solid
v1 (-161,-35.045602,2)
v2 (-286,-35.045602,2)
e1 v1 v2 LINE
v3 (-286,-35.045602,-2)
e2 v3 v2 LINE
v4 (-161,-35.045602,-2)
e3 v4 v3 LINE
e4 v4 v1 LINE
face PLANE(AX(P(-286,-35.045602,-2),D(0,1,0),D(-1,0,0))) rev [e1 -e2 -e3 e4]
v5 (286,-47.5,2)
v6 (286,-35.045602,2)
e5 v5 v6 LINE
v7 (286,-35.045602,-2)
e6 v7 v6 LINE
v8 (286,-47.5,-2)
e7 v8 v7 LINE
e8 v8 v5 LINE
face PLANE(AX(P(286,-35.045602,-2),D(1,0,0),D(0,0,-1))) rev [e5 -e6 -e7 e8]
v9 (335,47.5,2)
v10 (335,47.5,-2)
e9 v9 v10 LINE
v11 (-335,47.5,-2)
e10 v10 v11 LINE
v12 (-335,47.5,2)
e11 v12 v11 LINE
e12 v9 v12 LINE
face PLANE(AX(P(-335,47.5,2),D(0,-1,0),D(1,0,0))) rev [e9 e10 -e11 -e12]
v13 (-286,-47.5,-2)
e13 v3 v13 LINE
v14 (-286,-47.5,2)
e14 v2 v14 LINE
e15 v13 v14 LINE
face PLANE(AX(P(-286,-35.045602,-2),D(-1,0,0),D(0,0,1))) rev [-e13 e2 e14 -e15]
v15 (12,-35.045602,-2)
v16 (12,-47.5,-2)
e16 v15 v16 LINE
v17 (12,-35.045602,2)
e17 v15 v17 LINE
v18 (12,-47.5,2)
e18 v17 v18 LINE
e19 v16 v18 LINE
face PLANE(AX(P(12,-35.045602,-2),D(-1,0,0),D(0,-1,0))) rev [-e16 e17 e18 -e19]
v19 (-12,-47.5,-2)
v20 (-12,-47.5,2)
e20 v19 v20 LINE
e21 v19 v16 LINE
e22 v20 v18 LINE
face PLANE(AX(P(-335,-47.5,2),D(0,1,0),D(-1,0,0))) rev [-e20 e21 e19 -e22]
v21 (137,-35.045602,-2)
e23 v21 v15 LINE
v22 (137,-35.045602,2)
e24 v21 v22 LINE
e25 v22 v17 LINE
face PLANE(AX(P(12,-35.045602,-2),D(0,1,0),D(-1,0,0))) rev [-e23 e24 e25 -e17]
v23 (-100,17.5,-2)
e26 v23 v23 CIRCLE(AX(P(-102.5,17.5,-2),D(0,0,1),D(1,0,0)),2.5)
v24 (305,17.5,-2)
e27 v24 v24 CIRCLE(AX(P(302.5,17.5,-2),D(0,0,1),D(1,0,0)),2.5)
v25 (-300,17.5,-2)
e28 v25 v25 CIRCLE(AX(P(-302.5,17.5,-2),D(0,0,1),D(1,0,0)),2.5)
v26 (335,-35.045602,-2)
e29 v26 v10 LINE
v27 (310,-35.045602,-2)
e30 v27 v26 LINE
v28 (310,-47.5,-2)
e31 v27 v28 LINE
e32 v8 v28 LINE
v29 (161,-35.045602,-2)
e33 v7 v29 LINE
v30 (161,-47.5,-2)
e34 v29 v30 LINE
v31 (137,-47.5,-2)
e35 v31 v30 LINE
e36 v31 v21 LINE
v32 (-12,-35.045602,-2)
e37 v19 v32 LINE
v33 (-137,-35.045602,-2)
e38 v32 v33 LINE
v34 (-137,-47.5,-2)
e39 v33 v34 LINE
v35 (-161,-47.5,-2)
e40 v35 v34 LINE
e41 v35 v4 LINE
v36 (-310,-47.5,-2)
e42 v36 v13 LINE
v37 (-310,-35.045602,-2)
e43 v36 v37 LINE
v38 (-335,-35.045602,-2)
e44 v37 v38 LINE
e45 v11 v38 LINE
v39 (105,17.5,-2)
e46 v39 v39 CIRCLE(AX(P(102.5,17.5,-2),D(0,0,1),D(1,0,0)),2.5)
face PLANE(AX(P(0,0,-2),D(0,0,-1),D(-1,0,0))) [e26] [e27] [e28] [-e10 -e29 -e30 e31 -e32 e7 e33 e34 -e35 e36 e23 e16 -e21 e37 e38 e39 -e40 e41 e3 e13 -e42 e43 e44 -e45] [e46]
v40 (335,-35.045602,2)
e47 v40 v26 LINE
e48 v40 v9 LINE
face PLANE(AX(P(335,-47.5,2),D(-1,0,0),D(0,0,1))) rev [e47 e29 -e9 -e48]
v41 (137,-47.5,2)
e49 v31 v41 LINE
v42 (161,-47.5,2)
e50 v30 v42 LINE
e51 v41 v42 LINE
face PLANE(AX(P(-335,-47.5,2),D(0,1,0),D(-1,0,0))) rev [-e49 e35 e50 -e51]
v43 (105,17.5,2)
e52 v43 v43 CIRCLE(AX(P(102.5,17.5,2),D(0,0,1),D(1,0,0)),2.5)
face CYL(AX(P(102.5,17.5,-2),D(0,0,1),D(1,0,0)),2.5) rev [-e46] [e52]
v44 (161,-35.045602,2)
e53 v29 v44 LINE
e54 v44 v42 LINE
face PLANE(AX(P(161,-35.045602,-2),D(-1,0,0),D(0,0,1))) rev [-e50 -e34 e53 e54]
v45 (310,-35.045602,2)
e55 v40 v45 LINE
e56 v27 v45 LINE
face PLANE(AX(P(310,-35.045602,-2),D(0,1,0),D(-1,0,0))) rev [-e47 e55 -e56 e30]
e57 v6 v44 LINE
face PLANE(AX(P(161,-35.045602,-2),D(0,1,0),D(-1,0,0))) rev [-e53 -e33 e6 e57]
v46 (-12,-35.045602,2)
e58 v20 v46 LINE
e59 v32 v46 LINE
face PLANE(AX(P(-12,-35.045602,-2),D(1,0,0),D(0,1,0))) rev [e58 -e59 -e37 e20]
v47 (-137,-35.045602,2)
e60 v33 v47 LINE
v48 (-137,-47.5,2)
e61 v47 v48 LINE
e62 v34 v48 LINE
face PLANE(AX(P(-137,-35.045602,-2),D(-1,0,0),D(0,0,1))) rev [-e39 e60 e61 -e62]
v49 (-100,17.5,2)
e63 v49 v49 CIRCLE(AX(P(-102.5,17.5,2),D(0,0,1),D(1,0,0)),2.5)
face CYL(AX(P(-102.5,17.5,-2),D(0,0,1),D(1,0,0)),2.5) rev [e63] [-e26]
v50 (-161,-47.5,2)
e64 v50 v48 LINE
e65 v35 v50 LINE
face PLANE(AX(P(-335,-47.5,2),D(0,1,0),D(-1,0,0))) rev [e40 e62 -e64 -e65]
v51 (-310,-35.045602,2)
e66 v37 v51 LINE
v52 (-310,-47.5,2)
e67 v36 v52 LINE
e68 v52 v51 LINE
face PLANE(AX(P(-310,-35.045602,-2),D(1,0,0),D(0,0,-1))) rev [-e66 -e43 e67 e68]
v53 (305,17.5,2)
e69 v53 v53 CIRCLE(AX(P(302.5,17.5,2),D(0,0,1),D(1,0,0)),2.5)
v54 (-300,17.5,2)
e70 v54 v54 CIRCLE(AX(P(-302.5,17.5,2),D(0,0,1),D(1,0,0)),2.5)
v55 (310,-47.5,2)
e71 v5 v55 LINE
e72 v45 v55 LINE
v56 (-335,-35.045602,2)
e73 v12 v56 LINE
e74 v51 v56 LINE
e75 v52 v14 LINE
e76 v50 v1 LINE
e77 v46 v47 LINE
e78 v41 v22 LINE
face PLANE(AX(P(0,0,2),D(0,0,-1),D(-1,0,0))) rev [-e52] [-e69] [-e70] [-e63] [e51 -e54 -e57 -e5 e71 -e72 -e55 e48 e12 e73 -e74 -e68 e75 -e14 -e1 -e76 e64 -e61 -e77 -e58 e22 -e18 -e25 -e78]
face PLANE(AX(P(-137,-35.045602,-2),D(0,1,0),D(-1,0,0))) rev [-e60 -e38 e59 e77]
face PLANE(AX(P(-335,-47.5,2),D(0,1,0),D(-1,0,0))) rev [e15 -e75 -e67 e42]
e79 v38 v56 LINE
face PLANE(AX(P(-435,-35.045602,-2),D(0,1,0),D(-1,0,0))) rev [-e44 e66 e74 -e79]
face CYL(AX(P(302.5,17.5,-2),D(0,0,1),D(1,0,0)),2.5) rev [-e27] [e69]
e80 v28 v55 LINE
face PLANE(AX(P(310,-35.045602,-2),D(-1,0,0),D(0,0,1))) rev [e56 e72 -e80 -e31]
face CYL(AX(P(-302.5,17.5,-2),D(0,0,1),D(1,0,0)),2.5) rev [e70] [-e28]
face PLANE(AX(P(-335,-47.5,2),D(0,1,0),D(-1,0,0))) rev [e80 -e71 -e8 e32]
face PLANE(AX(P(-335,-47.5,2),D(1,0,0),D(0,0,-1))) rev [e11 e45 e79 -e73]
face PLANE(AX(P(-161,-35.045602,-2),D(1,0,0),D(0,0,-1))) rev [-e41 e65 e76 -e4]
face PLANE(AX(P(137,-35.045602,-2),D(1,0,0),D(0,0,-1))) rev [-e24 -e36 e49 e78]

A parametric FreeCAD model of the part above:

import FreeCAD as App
import Part
import Sketcher

V = App.Vector
Q = App.Units.Quantity

doc = App.newDocument("Part")
params = doc.addObject("Spreadsheet::Sheet", "Params")
for row, (alias, value) in enumerate([
    ("sketch1_width", "670 mm"),
    ("sketch1_height", "95 mm"),
    ("pad1_length", "4 mm"),
    ("sketch2_width", "125 mm"),
    ("sketch3_diameter", "5 mm"),
], start=1):
    params.set(f"A{row}", alias)
    params.set(f"B{row}", "=" + value)
    params.setAlias(f"B{row}", alias)

body = doc.addObject("PartDesign::Body", "Body")

# Sketch on XY plane
sketch1 = doc.addObject("Sketcher::SketchObject", "Sketch")
body.addObject(sketch1)
sketch1.AttachmentSupport = (doc.XY_Plane, [""])
sketch1.MapMode = "FlatFace"
sketch1.addGeometry([
    Part.LineSegment(V(-335, 48, 0), V(-335, -48, 0)),
    Part.LineSegment(V(-335, -48, 0), V(335, -48, 0)),
    Part.LineSegment(V(335, -48, 0), V(335, 48, 0)),
    Part.LineSegment(V(335, 48, 0), V(-335, 48, 0)),
], False)
sketch1.addConstraint([
    Sketcher.Constraint("Coincident", 0, 2, 1, 1),
    Sketcher.Constraint("Coincident", 1, 2, 2, 1),
    Sketcher.Constraint("Coincident", 2, 2, 3, 1),
    Sketcher.Constraint("Coincident", 3, 2, 0, 1),
    Sketcher.Constraint("Vertical", 0),
    Sketcher.Constraint("Horizontal", 1),
    Sketcher.Constraint("Vertical", 2),
    Sketcher.Constraint("Horizontal", 3),
    Sketcher.Constraint("Symmetric", 0, 2, 2, 2, -1, 1),
    Sketcher.Constraint("DistanceX", 1, 1, 1, 2, Q("670 mm")),
    Sketcher.Constraint("DistanceY", 0, 2, 0, 1, Q("95 mm")),
])
sketch1.setExpression("Constraints[9]", "Params.sketch1_width")
sketch1.setExpression("Constraints[10]", "Params.sketch1_height")
pad1 = doc.addObject("PartDesign::Pad", "Pad")
body.addObject(pad1)
pad1.Profile = sketch1
pad1.setExpression("Length", "Params.pad1_length")
pad1.Midplane = True

# Sketch on XY plane
sketch2 = doc.addObject("Sketcher::SketchObject", "Sketch001")
body.addObject(sketch2)
sketch2.AttachmentSupport = (doc.XY_Plane, [""])
sketch2.MapMode = "FlatFace"
sketch2.AttachmentOffset = App.Placement(V(0, 0, 2), App.Rotation())
sketch2.addGeometry([
    Part.LineSegment(V(-435, -35, 0), V(-435, -48, 0)),  # 0
    Part.LineSegment(V(-435, -48, 0), V(-310, -48, 0)),  # 1
    Part.LineSegment(V(-310, -48, 0), V(-310, -35, 0)),  # 2
    Part.LineSegment(V(-310, -35, 0), V(-435, -35, 0)),  # 3
    Part.LineSegment(V(-286, -35, 0), V(-286, -48, 0)),  # 4
    Part.LineSegment(V(-286, -48, 0), V(-161, -48, 0)),  # 5
    Part.LineSegment(V(-161, -48, 0), V(-161, -35, 0)),  # 6
    Part.LineSegment(V(-161, -35, 0), V(-286, -35, 0)),  # 7
    Part.LineSegment(V(-137, -35, 0), V(-137, -48, 0)),  # 8
    Part.LineSegment(V(-137, -48, 0), V(-12, -48, 0)),  # 9
    Part.LineSegment(V(-12, -48, 0), V(-12, -35, 0)),  # 10
    Part.LineSegment(V(-12, -35, 0), V(-137, -35, 0)),  # 11
    Part.LineSegment(V(12, -35, 0), V(12, -48, 0)),  # 12
    Part.LineSegment(V(12, -48, 0), V(137, -48, 0)),  # 13
    Part.LineSegment(V(137, -48, 0), V(137, -35, 0)),  # 14
    Part.LineSegment(V(137, -35, 0), V(12, -35, 0)),  # 15
    Part.LineSegment(V(161, -35, 0), V(161, -48, 0)),  # 16
    Part.LineSegment(V(161, -48, 0), V(286, -48, 0)),  # 17
    Part.LineSegment(V(286, -48, 0), V(286, -35, 0)),  # 18
    Part.LineSegment(V(286, -35, 0), V(161, -35, 0)),  # 19
    Part.LineSegment(V(310, -35, 0), V(310, -48, 0)),  # 20
    Part.LineSegment(V(310, -48, 0), V(435, -48, 0)),  # 21
    Part.LineSegment(V(435, -48, 0), V(435, -35, 0)),  # 22
    Part.LineSegment(V(435, -35, 0), V(310, -35, 0)),  # 23
], False)
sketch2.addConstraint([
    Sketcher.Constraint("Coincident", 0, 2, 1, 1),
    Sketcher.Constraint("Coincident", 1, 2, 2, 1),
    Sketcher.Constraint("Coincident", 2, 2, 3, 1),
    Sketcher.Constraint("Coincident", 3, 2, 0, 1),
    Sketcher.Constraint("Coincident", 4, 2, 5, 1),
    Sketcher.Constraint("Coincident", 5, 2, 6, 1),
    Sketcher.Constraint("Coincident", 6, 2, 7, 1),
    Sketcher.Constraint("Coincident", 7, 2, 4, 1),
    Sketcher.Constraint("Coincident", 8, 2, 9, 1),
    Sketcher.Constraint("Coincident", 9, 2, 10, 1),
    Sketcher.Constraint("Coincident", 10, 2, 11, 1),
    Sketcher.Constraint("Coincident", 11, 2, 8, 1),
    Sketcher.Constraint("Coincident", 12, 2, 13, 1),
    Sketcher.Constraint("Coincident", 13, 2, 14, 1),
    Sketcher.Constraint("Coincident", 14, 2, 15, 1),
    Sketcher.Constraint("Coincident", 15, 2, 12, 1),
    Sketcher.Constraint("Coincident", 16, 2, 17, 1),
    Sketcher.Constraint("Coincident", 17, 2, 18, 1),
    Sketcher.Constraint("Coincident", 18, 2, 19, 1),
    Sketcher.Constraint("Coincident", 19, 2, 16, 1),
    Sketcher.Constraint("Coincident", 20, 2, 21, 1),
    Sketcher.Constraint("Coincident", 21, 2, 22, 1),
    Sketcher.Constraint("Coincident", 22, 2, 23, 1),
    Sketcher.Constraint("Coincident", 23, 2, 20, 1),
    Sketcher.Constraint("Vertical", 0),
    Sketcher.Constraint("Horizontal", 1),
    Sketcher.Constraint("Vertical", 2),
    Sketcher.Constraint("Horizontal", 3),
    Sketcher.Constraint("Vertical", 4),
    Sketcher.Constraint("Horizontal", 5),
    Sketcher.Constraint("Vertical", 6),
    Sketcher.Constraint("Horizontal", 7),
    Sketcher.Constraint("Vertical", 8),
    Sketcher.Constraint("Horizontal", 9),
    Sketcher.Constraint("Vertical", 10),
    Sketcher.Constraint("Horizontal", 11),
    Sketcher.Constraint("Vertical", 12),
    Sketcher.Constraint("Horizontal", 13),
    Sketcher.Constraint("Vertical", 14),
    Sketcher.Constraint("Horizontal", 15),
    Sketcher.Constraint("Vertical", 16),
    Sketcher.Constraint("Horizontal", 17),
    Sketcher.Constraint("Vertical", 18),
    Sketcher.Constraint("Horizontal", 19),
    Sketcher.Constraint("Vertical", 20),
    Sketcher.Constraint("Horizontal", 21),
    Sketcher.Constraint("Vertical", 22),
    Sketcher.Constraint("Horizontal", 23),
    Sketcher.Constraint("Symmetric", 9, 2, 12, 2, -2),
    Sketcher.Constraint("Symmetric", 11, 2, 14, 2, -2),
    Sketcher.Constraint("Symmetric", 5, 2, 16, 2, -2),
    Sketcher.Constraint("Symmetric", 7, 2, 18, 2, -2),
    Sketcher.Constraint("Symmetric", 1, 2, 20, 2, -2),
    Sketcher.Constraint("Symmetric", 3, 2, 22, 2, -2),
    Sketcher.Constraint("Horizontal", 1, 2, 4, 2),
    Sketcher.Constraint("Horizontal", 3, 2, 6, 2),
    Sketcher.Constraint("Horizontal", 5, 2, 8, 2),
    Sketcher.Constraint("Horizontal", 7, 2, 10, 2),
    Sketcher.Constraint("Equal", 3, 5),
    Sketcher.Constraint("Equal", 7, 9),
    Sketcher.Constraint("DistanceX", 1, 1, 1, 2, Q("125 mm")),
    Sketcher.Constraint("DistanceX", 0, 2, -1, 1, Q("435 mm")),
    Sketcher.Constraint("DistanceX", 4, 2, -1, 1, Q("286 mm")),
    Sketcher.Constraint("DistanceX", 8, 2, -1, 1, Q("137 mm")),
    Sketcher.Constraint("DistanceY", 0, 2, -1, 1, Q("47.5 mm")),
    Sketcher.Constraint("DistanceY", 0, 2, 0, 1, Q("12.454398 mm")),
])
sketch2.setExpression("Constraints[60]", "Params.sketch2_width")
pocket1 = doc.addObject("PartDesign::Pocket", "Pocket")
body.addObject(pocket1)
pocket1.Profile = sketch2
pocket1.Type = "ThroughAll"

# Sketch on XY plane
sketch3 = doc.addObject("Sketcher::SketchObject", "Sketch002")
body.addObject(sketch3)
sketch3.AttachmentSupport = (doc.XY_Plane, [""])
sketch3.MapMode = "FlatFace"
sketch3.AttachmentOffset = App.Placement(V(0, 0, 2), App.Rotation())
sketch3.addGeometry([
    Part.Circle(V(-102.5, 17.5, 0), V(0, 0, 1), 2.5),
    Part.Circle(V(102.5, 17.5, 0), V(0, 0, 1), 2.5),
    Part.Circle(V(-302.5, 17.5, 0), V(0, 0, 1), 2.5),
    Part.Circle(V(302.5, 17.5, 0), V(0, 0, 1), 2.5),
], False)
sketch3.addConstraint([
    Sketcher.Constraint("Equal", 0, 1),
    Sketcher.Constraint("Equal", 1, 2),
    Sketcher.Constraint("Equal", 2, 3),
    Sketcher.Constraint("Symmetric", 0, 3, 1, 3, -2),
    Sketcher.Constraint("Symmetric", 2, 3, 3, 3, -2),
    Sketcher.Constraint("Horizontal", 1, 3, 2, 3),
    Sketcher.Constraint("Diameter", 0, Q("5 mm")),
    Sketcher.Constraint("DistanceX", 0, 3, 1, 3, Q("205 mm")),
    Sketcher.Constraint("DistanceX", 2, 3, 0, 3, Q("200 mm")),
    Sketcher.Constraint("DistanceY", -1, 1, 0, 3, Q("17.5 mm")),
])
sketch3.setExpression("Constraints[6]", "Params.sketch3_diameter")
pocket2 = doc.addObject("PartDesign::Pocket", "Pocket001")
body.addObject(pocket2)
pocket2.Profile = sketch3
pocket2.Type = "ThroughAll"

doc.recompute()
